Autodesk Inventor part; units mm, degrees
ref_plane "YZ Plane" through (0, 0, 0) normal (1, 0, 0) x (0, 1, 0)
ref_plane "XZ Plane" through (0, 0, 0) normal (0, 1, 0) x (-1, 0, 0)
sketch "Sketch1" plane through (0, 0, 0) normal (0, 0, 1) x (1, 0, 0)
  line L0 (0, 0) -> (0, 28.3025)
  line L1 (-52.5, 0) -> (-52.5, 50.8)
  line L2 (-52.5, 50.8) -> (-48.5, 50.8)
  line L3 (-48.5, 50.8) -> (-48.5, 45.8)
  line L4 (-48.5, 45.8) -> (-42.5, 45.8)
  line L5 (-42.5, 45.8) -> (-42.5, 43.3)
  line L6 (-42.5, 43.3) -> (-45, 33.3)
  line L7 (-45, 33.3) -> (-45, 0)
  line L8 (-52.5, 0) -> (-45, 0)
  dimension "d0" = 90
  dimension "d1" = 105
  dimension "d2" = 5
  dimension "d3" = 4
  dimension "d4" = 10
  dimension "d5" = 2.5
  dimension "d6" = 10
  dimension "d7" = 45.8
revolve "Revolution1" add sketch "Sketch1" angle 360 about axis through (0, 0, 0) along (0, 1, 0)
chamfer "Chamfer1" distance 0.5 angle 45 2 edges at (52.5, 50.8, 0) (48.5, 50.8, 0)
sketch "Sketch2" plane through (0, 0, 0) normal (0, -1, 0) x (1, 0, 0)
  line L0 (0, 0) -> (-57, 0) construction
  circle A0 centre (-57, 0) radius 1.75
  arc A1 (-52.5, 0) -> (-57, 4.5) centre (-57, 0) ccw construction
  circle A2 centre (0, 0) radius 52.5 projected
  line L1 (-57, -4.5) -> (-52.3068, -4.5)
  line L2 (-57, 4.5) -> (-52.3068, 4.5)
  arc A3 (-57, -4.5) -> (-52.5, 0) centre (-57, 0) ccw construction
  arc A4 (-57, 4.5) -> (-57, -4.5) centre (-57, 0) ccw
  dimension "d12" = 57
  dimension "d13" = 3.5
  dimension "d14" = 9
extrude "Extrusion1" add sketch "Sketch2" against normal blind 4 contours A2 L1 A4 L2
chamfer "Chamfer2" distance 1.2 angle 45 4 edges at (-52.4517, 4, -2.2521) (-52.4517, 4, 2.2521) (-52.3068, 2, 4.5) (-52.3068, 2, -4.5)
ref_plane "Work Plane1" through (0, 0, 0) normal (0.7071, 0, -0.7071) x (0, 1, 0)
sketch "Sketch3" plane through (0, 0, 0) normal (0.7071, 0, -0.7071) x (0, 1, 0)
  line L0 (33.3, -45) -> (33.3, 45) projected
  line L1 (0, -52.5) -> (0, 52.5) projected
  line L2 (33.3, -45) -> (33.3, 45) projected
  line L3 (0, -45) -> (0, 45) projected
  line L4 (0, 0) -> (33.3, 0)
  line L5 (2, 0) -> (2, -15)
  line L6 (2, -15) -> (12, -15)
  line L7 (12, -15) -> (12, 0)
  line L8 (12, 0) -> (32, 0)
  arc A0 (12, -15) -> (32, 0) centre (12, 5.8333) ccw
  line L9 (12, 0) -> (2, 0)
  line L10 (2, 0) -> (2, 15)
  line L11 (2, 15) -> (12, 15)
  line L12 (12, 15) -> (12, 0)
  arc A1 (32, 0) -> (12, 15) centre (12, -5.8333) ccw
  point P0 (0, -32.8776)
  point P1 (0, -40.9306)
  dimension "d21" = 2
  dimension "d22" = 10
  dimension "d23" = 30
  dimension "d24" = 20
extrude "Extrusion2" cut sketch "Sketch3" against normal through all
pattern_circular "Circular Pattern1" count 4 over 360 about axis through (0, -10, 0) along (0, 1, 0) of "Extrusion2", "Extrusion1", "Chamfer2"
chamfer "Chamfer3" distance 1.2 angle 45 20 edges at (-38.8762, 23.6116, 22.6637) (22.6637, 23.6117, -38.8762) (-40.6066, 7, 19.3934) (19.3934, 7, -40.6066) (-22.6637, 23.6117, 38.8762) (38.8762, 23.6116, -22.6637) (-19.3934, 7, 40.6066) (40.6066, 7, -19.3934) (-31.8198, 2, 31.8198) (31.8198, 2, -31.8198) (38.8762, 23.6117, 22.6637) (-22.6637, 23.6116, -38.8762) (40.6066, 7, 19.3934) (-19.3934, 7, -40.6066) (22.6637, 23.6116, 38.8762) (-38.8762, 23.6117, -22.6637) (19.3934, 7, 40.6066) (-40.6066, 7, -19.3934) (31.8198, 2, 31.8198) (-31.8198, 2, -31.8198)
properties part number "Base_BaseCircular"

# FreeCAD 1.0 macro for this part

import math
import FreeCAD as App
import Part
import Sketcher
from FreeCAD import Vector
Q = App.Units.Quantity


def edges_at(feature, points):
    """Names of the edges that pass closest to the given points."""
    edges = feature.Shape.Edges
    near = lambda p: min(range(len(edges)), key=lambda i: edges[i].distToShape(Part.Vertex(*p))[0])
    return sorted({f"Edge{near(p) + 1}" for p in points})

doc = App.newDocument("Part")
body = doc.addObject("PartDesign::Body", "Body")

# Sketch on XY plane
sketch1 = doc.addObject("Sketcher::SketchObject", "Sketch")
body.addObject(sketch1)
sketch1.AttachmentSupport = (doc.XY_Plane, [""])
sketch1.MapMode = "FlatFace"
sketch1.addGeometry(Part.LineSegment(Vector(-52.5, 50.8, 0), Vector(-52.5, 0, 0)), False)
sketch1.addGeometry(Part.LineSegment(Vector(-52.5, 0, 0), Vector(-45, 0, 0)), False)
sketch1.addGeometry(Part.LineSegment(Vector(-45, 0, 0), Vector(-45, 33.3, 0)), False)
sketch1.addGeometry(Part.LineSegment(Vector(-45, 33.3, 0), Vector(-42.5, 43.3, 0)), False)
sketch1.addGeometry(Part.LineSegment(Vector(-42.5, 43.3, 0), Vector(-42.5, 45.8, 0)), False)
sketch1.addGeometry(Part.LineSegment(Vector(-42.5, 45.8, 0), Vector(-48.5, 45.8, 0)), False)
sketch1.addGeometry(Part.LineSegment(Vector(-48.5, 45.8, 0), Vector(-48.5, 50.8, 0)), False)
sketch1.addGeometry(Part.LineSegment(Vector(-48.5, 50.8, 0), Vector(-52.5, 50.8, 0)), False)
sketch1.addConstraint(Sketcher.Constraint("Coincident", 0, 2, 1, 1))
sketch1.addConstraint(Sketcher.Constraint("Coincident", 1, 2, 2, 1))
sketch1.addConstraint(Sketcher.Constraint("Coincident", 2, 2, 3, 1))
sketch1.addConstraint(Sketcher.Constraint("Coincident", 3, 2, 4, 1))
sketch1.addConstraint(Sketcher.Constraint("Coincident", 4, 2, 5, 1))
sketch1.addConstraint(Sketcher.Constraint("Coincident", 5, 2, 6, 1))
sketch1.addConstraint(Sketcher.Constraint("Coincident", 6, 2, 7, 1))
sketch1.addConstraint(Sketcher.Constraint("Coincident", 7, 2, 0, 1))
sketch1.addConstraint(Sketcher.Constraint("Vertical", 0))
sketch1.addConstraint(Sketcher.Constraint("Horizontal", 1))
sketch1.addConstraint(Sketcher.Constraint("Vertical", 2))
sketch1.addConstraint(Sketcher.Constraint("Vertical", 4))
sketch1.addConstraint(Sketcher.Constraint("Horizontal", 5))
sketch1.addConstraint(Sketcher.Constraint("Vertical", 6))
sketch1.addConstraint(Sketcher.Constraint("Horizontal", 7))
sketch1.addConstraint(Sketcher.Constraint("PointOnObject", 0, 2, -1))
sketch1.addConstraint(Sketcher.Constraint("DistanceX", 7, 2, 7, 1, Q("4 mm")))
sketch1.addConstraint(Sketcher.Constraint("DistanceY", 6, 1, 6, 2, Q("5 mm")))
sketch1.addConstraint(Sketcher.Constraint("DistanceY", 4, 1, 4, 2, Q("2.5 mm")))
sketch1.addConstraint(Sketcher.Constraint("DistanceY", 2, 2, 3, 2, Q("10 mm")))
sketch1.addConstraint(Sketcher.Constraint("DistanceX", 0, 2, 3, 2, Q("10 mm")))
sketch1.addConstraint(Sketcher.Constraint("DistanceY", -1, 1, 4, 2, Q("45.8 mm")))
sketch1.addConstraint(Sketcher.Constraint("DistanceX", 2, 2, 3, 2, Q("2.5 mm")))
sketch1.addConstraint(Sketcher.Constraint("DistanceX", 1, 2, -1, 1, Q("45 mm")))
revolution = doc.addObject("PartDesign::Revolution", "Revolution")
body.addObject(revolution)
revolution.Profile = sketch1
revolution.ReferenceAxis = (sketch1, ["V_Axis"])
revolution.Angle = 360
doc.recompute()

chamfer = doc.addObject("PartDesign::Chamfer", "Chamfer")
body.addObject(chamfer)
chamfer.Base = (revolution, edges_at(revolution, [(52.5, 50.8, 0), (48.5, 50.8, 0)]))
chamfer.Size = 0.5

# Sketch on XZ plane
sketch2 = doc.addObject("Sketcher::SketchObject", "Sketch001")
body.addObject(sketch2)
sketch2.AttachmentSupport = (doc.XZ_Plane, [""])
sketch2.MapMode = "FlatFace"
sketch2.addGeometry(Part.ArcOfCircle(Part.Circle(Vector(0, 0, 0), Vector(0, 0, 1), 52.5), math.radians(175.08), math.radians(184.92)), False)
sketch2.addGeometry(Part.LineSegment(Vector(-52.3, 4.5, 0), Vector(-57, 4.5, 0)), False)
sketch2.addGeometry(Part.ArcOfCircle(Part.Circle(Vector(-57, 0, 0), Vector(0, 0, 1), 4.5), math.radians(90), math.radians(270)), False)
sketch2.addGeometry(Part.LineSegment(Vector(-57, -4.5, 0), Vector(-52.3, -4.5, 0)), False)
sketch2.addGeometry(Part.Circle(Vector(-57, 0, 0), Vector(0, 0, 1), 1.8), False)
sketch2.addConstraint(Sketcher.Constraint("Coincident", 0, 1, 1, 1))
sketch2.addConstraint(Sketcher.Constraint("Tangent", 1, 2, 2, 1))
sketch2.addConstraint(Sketcher.Constraint("Tangent", 2, 2, 3, 1))
sketch2.addConstraint(Sketcher.Constraint("Coincident", 3, 2, 0, 2))
sketch2.addConstraint(Sketcher.Constraint("Horizontal", 1))
sketch2.addConstraint(Sketcher.Constraint("Horizontal", 3))
sketch2.addConstraint(Sketcher.Constraint("Coincident", 0, 3, -1, 1))
sketch2.addConstraint(Sketcher.Constraint("Coincident", 4, 3, 2, 3))
sketch2.addConstraint(Sketcher.Constraint("PointOnObject", 2, 3, -1))
sketch2.addConstraint(Sketcher.Constraint("Diameter", 4, Q("3.5 mm")))
sketch2.addConstraint(Sketcher.Constraint("Radius", 2, Q("4.5 mm")))
sketch2.addConstraint(Sketcher.Constraint("DistanceX", 2, 3, -1, 1, Q("57 mm")))
sketch2.addConstraint(Sketcher.Constraint("Radius", 0, Q("52.5 mm")))
pad1 = doc.addObject("PartDesign::Pad", "Pad")
body.addObject(pad1)
pad1.Profile = sketch2
pad1.Length = 4
pad1.Reversed = True
doc.recompute()

chamfer2 = doc.addObject("PartDesign::Chamfer", "Chamfer001")
body.addObject(chamfer2)
chamfer2.Base = (pad1, edges_at(pad1, [
    (-52.452, 4, -2.252),
    (-52.452, 4, 2.252),
    (-52.307, 2, 4.5),
    (-52.307, 2, -4.5),
]))
chamfer2.Size = 1.2

# Sketch on an angled plane
sketch3 = doc.addObject("Sketcher::SketchObject", "Sketch002")
body.addObject(sketch3)
sketch3.Placement = App.Placement(Vector(0, 0, 0), App.Rotation(Vector(0, 1, 0), Vector(0.707106781, 0, 0.707106781), Vector(0.707106781, 0, -0.707106781), "ZXY"))
sketch3.addGeometry(Part.LineSegment(Vector(2, 15, 0), Vector(2, -15, 0)), False)
sketch3.addGeometry(Part.LineSegment(Vector(2, -15, 0), Vector(12, -15, 0)), False)
sketch3.addGeometry(Part.ArcOfCircle(Part.Circle(Vector(12, 6, 0), Vector(0, 0, 1), 21), math.radians(-90), math.radians(-16)), False)
sketch3.addGeometry(Part.ArcOfCircle(Part.Circle(Vector(12, -6, 0), Vector(0, 0, 1), 21), math.radians(16), math.radians(90)), False)
sketch3.addGeometry(Part.LineSegment(Vector(12, 15, 0), Vector(2, 15, 0)), False)
sketch3.addConstraint(Sketcher.Constraint("Coincident", 0, 2, 1, 1))
sketch3.addConstraint(Sketcher.Constraint("Tangent", 1, 2, 2, 1))
sketch3.addConstraint(Sketcher.Constraint("Coincident", 2, 2, 3, 1))
sketch3.addConstraint(Sketcher.Constraint("Tangent", 3, 2, 4, 1))
sketch3.addConstraint(Sketcher.Constraint("Coincident", 4, 2, 0, 1))
sketch3.addConstraint(Sketcher.Constraint("Vertical", 0))
sketch3.addConstraint(Sketcher.Constraint("Horizontal", 1))
sketch3.addConstraint(Sketcher.Constraint("Horizontal", 4))
sketch3.addConstraint(Sketcher.Constraint("Equal", 2, 3))
sketch3.addConstraint(Sketcher.Constraint("Symmetric", 2, 3, 3, 3, -1))
sketch3.addConstraint(Sketcher.Constraint("DistanceX", 1, 1, 1, 2, Q("10 mm")))
sketch3.addConstraint(Sketcher.Constraint("DistanceY", 0, 2, 0, 1, Q("30 mm")))
sketch3.addConstraint(Sketcher.Constraint("DistanceX", -1, 1, 0, 2, Q("2 mm")))
sketch3.addConstraint(Sketcher.Constraint("DistanceX", 2, 3, 2, 2, Q("20 mm")))
pocket1 = doc.addObject("PartDesign::Pocket", "Pocket")
body.addObject(pocket1)
pocket1.Profile = sketch3
pocket1.Type = "ThroughAll"
doc.recompute()

polarpattern = doc.addObject("PartDesign::PolarPattern", "PolarPattern")
body.addObject(polarpattern)
polarpattern.Originals = [pocket1, pad1, chamfer2]
polarpattern.Axis = (doc.Y_Axis, [""])
polarpattern.Angle = 360
polarpattern.Occurrences = 4
body.Tip = polarpattern
doc.recompute()

chamfer3 = doc.addObject("PartDesign::Chamfer", "Chamfer002")
body.addObject(chamfer3)
chamfer3.Base = (polarpattern, edges_at(polarpattern, [
    (-38.876, 23.612, 22.664),
    (22.664, 23.612, -38.876),
    (-40.607, 7, 19.393),
    (19.393, 7, -40.607),
    (-22.664, 23.612, 38.876),
    (38.876, 23.612, -22.664),
    (-19.393, 7, 40.607),
    (40.607, 7, -19.393),
    (-31.82, 2, 31.82),
    (31.82, 2, -31.82),
    (38.876, 23.612, 22.664),
    (-22.664, 23.612, -38.876),
    (40.607, 7, 19.393),
    (-19.393, 7, -40.607),
    (22.664, 23.612, 38.876),
    (-38.876, 23.612, -22.664),
    (19.393, 7, 40.607),
    (-40.607, 7, -19.393),
    (31.82, 2, 31.82),
    (-31.82, 2, -31.82),
]))
chamfer3.Size = 1.2

doc.recompute()
